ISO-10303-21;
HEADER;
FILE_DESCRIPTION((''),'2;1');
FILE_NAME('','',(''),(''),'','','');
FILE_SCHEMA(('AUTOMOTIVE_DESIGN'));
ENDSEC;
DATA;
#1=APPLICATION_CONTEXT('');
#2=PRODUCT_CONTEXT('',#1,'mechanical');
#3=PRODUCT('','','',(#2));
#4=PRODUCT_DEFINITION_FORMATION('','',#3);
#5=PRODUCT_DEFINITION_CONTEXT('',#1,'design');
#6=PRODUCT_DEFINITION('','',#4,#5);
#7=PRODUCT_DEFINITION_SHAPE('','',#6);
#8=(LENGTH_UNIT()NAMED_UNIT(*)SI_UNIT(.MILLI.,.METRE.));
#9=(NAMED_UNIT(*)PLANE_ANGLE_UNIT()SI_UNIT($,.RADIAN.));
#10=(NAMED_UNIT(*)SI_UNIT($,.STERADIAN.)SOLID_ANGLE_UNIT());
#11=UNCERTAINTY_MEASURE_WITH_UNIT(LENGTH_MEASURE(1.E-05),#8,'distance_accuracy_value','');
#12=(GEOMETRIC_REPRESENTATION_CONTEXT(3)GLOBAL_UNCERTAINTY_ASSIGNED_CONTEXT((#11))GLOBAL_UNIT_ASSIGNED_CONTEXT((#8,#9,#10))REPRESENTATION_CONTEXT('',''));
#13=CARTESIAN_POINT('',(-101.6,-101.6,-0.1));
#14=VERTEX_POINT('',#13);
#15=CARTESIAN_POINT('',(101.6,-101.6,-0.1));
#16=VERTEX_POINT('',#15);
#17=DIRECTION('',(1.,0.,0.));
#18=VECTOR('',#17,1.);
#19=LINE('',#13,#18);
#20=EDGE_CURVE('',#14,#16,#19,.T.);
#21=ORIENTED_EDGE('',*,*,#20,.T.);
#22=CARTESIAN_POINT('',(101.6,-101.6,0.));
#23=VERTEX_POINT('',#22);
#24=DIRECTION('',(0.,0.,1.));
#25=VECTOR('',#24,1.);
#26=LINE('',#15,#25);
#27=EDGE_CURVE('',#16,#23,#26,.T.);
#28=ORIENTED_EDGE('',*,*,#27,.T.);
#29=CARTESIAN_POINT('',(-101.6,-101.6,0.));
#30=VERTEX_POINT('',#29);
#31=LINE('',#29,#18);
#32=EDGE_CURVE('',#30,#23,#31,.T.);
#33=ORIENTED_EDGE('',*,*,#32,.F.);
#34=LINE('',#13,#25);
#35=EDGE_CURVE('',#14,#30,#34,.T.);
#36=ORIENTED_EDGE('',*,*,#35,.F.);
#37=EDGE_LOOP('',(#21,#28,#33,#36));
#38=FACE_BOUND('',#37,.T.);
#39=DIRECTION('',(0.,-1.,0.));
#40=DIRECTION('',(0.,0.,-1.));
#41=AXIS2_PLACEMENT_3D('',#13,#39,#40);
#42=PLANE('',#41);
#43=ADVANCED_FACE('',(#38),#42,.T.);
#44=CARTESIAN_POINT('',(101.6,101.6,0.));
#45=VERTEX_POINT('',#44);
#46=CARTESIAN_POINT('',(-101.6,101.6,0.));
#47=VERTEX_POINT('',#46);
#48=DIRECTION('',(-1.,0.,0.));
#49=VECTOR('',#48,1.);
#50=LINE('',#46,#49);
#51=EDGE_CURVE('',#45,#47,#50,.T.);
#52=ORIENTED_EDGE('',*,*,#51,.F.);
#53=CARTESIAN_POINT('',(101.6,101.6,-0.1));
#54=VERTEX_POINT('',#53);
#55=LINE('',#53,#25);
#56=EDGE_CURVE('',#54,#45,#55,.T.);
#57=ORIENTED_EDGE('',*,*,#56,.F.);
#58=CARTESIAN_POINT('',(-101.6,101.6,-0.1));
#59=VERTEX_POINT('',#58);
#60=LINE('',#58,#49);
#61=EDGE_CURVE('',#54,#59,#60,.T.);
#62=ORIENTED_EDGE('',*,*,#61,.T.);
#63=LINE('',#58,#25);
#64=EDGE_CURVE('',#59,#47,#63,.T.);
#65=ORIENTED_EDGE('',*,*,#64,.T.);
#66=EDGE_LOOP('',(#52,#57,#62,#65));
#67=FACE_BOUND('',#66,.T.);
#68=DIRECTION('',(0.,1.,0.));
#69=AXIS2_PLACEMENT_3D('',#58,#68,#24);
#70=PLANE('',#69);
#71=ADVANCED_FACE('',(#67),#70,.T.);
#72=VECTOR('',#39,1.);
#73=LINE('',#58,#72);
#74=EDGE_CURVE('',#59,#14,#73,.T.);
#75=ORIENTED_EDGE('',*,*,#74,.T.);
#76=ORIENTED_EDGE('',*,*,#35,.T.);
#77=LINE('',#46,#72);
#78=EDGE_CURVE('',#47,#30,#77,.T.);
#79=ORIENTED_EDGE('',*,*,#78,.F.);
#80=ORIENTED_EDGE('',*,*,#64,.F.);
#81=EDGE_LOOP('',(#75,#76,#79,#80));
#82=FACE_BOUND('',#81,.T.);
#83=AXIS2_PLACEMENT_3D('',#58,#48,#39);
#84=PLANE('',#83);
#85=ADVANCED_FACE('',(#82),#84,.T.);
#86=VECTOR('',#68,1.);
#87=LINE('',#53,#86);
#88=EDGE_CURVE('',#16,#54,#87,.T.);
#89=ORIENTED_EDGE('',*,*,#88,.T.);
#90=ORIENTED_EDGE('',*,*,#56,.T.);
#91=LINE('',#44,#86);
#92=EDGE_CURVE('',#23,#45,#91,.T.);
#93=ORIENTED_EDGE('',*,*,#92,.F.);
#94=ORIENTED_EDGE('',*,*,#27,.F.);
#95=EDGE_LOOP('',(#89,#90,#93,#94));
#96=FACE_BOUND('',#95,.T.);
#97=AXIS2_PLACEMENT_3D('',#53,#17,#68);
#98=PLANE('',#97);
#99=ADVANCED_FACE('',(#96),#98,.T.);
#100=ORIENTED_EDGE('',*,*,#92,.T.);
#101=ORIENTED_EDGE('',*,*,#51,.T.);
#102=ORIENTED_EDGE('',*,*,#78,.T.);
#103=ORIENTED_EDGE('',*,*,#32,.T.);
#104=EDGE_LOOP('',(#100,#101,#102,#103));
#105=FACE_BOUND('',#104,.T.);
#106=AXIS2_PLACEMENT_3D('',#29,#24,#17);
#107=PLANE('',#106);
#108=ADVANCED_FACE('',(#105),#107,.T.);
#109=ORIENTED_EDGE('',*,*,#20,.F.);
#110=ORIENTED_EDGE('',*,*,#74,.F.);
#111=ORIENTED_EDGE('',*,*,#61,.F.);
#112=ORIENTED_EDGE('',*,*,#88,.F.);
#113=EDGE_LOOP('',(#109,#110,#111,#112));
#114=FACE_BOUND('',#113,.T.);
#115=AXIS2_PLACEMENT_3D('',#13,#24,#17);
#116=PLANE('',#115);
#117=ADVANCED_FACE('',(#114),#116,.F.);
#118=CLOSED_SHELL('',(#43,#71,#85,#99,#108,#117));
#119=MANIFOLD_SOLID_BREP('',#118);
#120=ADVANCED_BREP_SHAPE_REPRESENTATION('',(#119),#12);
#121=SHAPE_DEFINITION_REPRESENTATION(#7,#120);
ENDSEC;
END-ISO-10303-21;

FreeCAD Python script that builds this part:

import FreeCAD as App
import Part
import Sketcher

doc = App.newDocument("Part")
body = doc.addObject("PartDesign::Body", "Body")

sketch1 = body.newObject("Sketcher::SketchObject", "Sketch")
sketch1.AttachmentSupport = (doc.getObject("XY_Plane"), [""])
sketch1.MapMode = "FlatFace"
sketch1.addGeometry([
    Part.LineSegment(App.Vector(-102, 102, 0), App.Vector(-102, -102, 0)),
    Part.LineSegment(App.Vector(-102, -102, 0), App.Vector(102, -102, 0)),
    Part.LineSegment(App.Vector(102, -102, 0), App.Vector(102, 102, 0)),
    Part.LineSegment(App.Vector(102, 102, 0), App.Vector(-102, 102, 0)),
], False)
sketch1.addConstraint([
    Sketcher.Constraint("Coincident", 0, 2, 1, 1),
    Sketcher.Constraint("Coincident", 1, 2, 2, 1),
    Sketcher.Constraint("Coincident", 2, 2, 3, 1),
    Sketcher.Constraint("Coincident", 3, 2, 0, 1),
    Sketcher.Constraint("Vertical", 0),
    Sketcher.Constraint("Horizontal", 1),
    Sketcher.Constraint("Vertical", 2),
    Sketcher.Constraint("Horizontal", 3),
    Sketcher.Constraint("Symmetric", 0, 2, 2, 2, -1, 1),
    Sketcher.Constraint("Equal", 3, 0),
    Sketcher.Constraint("DistanceX", 1, 1, 1, 2, 203.2),
])
pad1 = body.newObject("PartDesign::Pad", "Pad")
pad1.Profile = sketch1
pad1.Length = 0.1
pad1.Reversed = True

doc.recompute()
